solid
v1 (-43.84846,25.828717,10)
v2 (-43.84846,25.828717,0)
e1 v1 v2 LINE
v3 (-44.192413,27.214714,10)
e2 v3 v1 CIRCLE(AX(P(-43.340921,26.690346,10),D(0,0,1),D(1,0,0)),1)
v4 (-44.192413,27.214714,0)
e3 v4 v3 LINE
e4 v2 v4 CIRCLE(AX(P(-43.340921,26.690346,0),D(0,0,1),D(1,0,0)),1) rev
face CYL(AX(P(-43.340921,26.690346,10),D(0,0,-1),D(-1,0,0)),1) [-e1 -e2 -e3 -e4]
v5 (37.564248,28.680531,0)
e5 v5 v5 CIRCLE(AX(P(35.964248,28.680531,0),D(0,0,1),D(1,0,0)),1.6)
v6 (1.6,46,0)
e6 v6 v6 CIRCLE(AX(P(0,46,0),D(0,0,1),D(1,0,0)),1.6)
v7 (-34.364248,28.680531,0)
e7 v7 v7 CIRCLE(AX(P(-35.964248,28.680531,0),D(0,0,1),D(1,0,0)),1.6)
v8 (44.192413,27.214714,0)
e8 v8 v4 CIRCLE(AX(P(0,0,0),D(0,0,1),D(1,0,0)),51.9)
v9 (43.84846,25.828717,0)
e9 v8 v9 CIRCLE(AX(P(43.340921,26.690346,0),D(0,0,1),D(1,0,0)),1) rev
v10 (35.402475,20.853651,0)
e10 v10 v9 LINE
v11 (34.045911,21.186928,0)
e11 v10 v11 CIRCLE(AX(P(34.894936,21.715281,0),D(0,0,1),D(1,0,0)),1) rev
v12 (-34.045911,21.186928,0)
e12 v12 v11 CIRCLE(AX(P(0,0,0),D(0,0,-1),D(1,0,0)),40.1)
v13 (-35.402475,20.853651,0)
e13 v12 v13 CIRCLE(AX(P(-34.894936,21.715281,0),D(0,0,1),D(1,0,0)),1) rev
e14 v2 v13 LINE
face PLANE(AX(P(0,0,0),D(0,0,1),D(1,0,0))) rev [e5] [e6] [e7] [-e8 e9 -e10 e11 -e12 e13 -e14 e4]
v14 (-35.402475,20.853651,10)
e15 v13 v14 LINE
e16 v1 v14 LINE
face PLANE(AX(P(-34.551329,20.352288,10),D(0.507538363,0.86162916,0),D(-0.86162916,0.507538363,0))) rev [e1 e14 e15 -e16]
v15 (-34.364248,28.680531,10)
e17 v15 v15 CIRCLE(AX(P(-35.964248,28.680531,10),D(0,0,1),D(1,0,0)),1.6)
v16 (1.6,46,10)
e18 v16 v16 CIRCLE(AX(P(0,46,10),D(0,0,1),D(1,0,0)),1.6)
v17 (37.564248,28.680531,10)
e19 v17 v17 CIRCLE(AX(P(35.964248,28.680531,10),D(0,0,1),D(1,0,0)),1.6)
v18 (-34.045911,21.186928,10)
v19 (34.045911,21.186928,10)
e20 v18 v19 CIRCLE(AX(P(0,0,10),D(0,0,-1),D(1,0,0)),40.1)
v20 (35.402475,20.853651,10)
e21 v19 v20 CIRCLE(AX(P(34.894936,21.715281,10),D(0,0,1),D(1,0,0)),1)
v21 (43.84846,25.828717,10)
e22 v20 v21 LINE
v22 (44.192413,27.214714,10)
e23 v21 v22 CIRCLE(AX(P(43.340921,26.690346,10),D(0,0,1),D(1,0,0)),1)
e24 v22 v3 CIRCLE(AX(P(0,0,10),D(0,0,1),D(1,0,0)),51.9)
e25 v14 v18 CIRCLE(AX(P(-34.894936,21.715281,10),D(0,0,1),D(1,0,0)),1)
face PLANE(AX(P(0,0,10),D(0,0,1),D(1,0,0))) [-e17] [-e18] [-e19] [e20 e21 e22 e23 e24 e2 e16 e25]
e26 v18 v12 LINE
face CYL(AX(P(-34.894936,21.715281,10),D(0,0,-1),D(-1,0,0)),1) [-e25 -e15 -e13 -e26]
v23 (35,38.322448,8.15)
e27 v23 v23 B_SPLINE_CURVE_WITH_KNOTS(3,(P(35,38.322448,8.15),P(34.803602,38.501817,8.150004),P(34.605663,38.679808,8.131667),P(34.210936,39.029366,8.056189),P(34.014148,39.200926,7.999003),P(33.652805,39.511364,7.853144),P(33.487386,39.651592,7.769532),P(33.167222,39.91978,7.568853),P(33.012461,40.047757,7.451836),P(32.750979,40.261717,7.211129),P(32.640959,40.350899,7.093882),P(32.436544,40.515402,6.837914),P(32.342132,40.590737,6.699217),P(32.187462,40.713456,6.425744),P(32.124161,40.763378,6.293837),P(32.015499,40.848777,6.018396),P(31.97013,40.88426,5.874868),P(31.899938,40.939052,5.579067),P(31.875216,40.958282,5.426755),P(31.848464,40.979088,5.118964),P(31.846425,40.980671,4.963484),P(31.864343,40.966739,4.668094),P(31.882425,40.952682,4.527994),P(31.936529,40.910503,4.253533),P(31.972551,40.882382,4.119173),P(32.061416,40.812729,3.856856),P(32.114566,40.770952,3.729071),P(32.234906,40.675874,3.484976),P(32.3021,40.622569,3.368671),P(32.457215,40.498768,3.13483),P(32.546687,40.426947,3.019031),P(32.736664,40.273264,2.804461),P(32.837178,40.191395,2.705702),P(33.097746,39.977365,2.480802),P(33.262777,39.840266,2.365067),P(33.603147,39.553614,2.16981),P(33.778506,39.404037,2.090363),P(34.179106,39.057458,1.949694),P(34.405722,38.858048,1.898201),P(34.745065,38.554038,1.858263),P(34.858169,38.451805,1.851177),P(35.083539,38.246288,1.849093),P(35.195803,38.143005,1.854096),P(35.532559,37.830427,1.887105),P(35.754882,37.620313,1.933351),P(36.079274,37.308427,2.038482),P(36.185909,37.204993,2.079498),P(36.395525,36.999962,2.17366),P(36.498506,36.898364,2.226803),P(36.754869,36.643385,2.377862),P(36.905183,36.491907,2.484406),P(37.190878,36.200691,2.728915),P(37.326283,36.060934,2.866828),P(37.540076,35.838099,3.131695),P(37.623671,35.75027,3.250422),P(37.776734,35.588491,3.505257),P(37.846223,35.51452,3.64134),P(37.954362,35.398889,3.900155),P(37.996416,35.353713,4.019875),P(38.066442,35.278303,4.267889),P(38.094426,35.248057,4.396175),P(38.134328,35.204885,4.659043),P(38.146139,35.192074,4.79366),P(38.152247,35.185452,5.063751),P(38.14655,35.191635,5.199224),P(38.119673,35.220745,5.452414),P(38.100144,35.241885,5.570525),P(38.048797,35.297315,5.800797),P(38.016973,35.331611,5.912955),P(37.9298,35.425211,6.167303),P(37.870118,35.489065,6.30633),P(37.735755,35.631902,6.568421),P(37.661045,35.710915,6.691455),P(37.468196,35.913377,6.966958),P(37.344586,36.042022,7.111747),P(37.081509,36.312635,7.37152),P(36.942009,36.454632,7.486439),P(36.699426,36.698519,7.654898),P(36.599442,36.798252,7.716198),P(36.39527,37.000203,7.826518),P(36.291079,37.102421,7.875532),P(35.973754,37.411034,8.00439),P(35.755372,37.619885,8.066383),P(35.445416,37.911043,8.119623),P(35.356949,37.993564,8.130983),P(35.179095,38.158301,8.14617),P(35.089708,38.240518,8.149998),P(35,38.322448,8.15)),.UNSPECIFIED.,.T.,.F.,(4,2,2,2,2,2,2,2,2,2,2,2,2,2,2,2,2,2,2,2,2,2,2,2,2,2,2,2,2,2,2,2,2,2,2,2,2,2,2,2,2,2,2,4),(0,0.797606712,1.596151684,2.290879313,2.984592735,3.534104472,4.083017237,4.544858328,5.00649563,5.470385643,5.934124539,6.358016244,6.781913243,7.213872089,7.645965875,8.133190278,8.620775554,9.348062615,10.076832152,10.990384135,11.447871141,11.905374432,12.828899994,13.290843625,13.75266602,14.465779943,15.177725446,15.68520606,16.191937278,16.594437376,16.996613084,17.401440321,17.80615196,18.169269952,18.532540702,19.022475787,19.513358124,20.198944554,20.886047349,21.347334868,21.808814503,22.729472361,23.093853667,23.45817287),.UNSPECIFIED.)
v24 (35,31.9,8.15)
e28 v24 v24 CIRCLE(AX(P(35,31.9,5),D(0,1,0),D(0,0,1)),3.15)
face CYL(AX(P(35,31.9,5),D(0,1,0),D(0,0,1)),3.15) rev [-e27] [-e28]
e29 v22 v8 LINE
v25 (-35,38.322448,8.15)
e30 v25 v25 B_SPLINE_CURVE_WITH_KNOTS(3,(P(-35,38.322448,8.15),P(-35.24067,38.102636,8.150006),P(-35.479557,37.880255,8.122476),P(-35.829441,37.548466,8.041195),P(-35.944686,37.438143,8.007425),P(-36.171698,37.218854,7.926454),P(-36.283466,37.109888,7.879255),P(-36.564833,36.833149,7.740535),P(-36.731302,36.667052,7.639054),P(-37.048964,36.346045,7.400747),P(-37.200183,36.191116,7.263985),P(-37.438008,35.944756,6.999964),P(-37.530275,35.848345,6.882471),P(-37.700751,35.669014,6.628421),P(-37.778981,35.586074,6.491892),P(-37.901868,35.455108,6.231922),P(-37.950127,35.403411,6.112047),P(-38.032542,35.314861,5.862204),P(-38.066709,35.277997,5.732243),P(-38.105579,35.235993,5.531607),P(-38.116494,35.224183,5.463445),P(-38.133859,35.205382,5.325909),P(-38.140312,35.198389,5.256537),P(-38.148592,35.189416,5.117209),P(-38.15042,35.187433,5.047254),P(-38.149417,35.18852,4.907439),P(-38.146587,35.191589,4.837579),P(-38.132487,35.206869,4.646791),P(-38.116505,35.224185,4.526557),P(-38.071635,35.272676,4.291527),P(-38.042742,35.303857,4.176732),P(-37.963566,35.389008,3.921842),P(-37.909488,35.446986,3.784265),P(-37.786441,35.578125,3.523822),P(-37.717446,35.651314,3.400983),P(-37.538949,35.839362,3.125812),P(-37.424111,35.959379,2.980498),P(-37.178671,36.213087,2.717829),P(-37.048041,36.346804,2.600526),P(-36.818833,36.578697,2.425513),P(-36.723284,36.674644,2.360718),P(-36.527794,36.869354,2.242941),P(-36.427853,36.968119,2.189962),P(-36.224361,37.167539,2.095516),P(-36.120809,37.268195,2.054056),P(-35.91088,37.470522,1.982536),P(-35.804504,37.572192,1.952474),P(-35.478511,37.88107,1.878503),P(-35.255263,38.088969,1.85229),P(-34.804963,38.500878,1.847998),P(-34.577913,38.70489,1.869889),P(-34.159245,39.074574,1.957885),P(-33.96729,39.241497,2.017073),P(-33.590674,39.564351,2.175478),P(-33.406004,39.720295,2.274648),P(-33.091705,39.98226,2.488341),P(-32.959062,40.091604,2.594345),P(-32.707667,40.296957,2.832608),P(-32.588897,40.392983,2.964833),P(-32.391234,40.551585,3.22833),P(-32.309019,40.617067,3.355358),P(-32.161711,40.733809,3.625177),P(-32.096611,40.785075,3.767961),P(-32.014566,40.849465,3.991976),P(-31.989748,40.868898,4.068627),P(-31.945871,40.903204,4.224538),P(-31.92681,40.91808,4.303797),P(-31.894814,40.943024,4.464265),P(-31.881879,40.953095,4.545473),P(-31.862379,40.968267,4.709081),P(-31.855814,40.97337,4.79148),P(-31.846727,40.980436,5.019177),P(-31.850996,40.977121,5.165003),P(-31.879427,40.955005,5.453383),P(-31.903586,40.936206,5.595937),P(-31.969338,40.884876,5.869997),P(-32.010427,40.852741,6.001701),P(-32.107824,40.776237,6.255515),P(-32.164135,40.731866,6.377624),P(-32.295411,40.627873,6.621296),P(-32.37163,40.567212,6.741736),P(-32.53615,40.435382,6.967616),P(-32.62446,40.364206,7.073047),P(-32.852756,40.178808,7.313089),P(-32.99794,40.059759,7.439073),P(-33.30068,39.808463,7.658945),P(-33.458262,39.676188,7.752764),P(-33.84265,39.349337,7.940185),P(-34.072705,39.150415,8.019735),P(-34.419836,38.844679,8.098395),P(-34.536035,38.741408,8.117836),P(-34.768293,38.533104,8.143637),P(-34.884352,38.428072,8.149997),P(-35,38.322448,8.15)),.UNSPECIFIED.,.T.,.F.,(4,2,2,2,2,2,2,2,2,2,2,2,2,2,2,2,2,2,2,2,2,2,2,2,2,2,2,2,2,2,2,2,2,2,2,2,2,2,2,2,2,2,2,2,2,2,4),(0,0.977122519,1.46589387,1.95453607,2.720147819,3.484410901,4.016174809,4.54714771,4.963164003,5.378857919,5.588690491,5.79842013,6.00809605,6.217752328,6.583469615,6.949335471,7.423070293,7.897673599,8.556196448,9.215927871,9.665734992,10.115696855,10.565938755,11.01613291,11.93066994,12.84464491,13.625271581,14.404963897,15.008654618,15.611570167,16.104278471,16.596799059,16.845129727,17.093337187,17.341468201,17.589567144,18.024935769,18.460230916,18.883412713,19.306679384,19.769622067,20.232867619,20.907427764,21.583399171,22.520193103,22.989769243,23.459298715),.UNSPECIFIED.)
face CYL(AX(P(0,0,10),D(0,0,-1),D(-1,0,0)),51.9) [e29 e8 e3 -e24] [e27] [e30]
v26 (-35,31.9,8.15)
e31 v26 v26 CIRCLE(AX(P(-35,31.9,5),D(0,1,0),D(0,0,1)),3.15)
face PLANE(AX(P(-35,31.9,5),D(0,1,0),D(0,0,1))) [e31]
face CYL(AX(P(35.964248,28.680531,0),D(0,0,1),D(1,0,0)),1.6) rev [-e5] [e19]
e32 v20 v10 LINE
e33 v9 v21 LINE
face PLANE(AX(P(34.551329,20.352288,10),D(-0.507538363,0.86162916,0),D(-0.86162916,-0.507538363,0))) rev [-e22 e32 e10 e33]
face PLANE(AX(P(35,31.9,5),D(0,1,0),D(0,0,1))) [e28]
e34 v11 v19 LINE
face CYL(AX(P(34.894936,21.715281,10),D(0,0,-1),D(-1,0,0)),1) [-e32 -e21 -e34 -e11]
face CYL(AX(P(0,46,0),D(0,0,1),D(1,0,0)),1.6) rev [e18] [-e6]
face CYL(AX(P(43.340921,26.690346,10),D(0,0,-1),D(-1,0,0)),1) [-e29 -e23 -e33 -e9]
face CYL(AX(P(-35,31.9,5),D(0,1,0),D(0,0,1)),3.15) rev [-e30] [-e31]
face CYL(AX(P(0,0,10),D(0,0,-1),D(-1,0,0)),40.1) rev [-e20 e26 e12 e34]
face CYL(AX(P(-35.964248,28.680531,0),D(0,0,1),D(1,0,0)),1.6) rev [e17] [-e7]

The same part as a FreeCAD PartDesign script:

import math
import FreeCAD as App
import Part
import Sketcher
Q = App.Units.Quantity


def edges_at(feature, points):
    """Names of the edges that pass closest to the given points."""
    edges = feature.Shape.Edges
    near = lambda p: min(range(len(edges)), key=lambda i: edges[i].distToShape(Part.Vertex(*p))[0])
    return sorted({f"Edge{near(p) + 1}" for p in points})

doc = App.newDocument("Part")
params = doc.addObject("Spreadsheet::Sheet", "Params")
for row, (alias, value) in enumerate([
    ("sketch1_radius", "40.1 mm"),
    ("sketch1_radius2", "51.9 mm"),
    ("pad1_length", "10 mm"),
    ("fillet_radius", "1 mm"),
    ("sketch2_diameter", "3.2 mm"),
    ("pocket1_length", "10 mm"),
    ("sketch3_diameter", "6.3 mm"),
    ("pocket2_length", "20 mm"),
], start=1):
    params.set(f"A{row}", alias)
    params.set(f"B{row}", "=" + value)
    params.setAlias(f"B{row}", alias)

body = doc.addObject("PartDesign::Body", "Body")

# Sketch on XY plane
sketch1 = doc.addObject("Sketcher::SketchObject", "Sketch")
body.addObject(sketch1)
sketch1.AttachmentSupport = (doc.XY_Plane, [""])
sketch1.MapMode = "FlatFace"
sketch1.addGeometry(Part.LineSegment(App.Vector(-45, 26, 0), App.Vector(-35, 20, 0)), False)
sketch1.addGeometry(Part.ArcOfCircle(Part.Circle(App.Vector(0, 0, 0), App.Vector(0, 0, 1), 40), math.radians(31), math.radians(149)), False)
sketch1.addGeometry(Part.LineSegment(App.Vector(35, 20, 0), App.Vector(45, 26, 0)), False)
sketch1.addGeometry(Part.ArcOfCircle(Part.Circle(App.Vector(0, 0, 0), App.Vector(0, 0, 1), 52), math.radians(31), math.radians(149)), False)
sketch1.addConstraint(Sketcher.Constraint("Coincident", 0, 2, 1, 2))
sketch1.addConstraint(Sketcher.Constraint("Coincident", 1, 1, 2, 1))
sketch1.addConstraint(Sketcher.Constraint("Coincident", 2, 2, 3, 1))
sketch1.addConstraint(Sketcher.Constraint("Coincident", 3, 2, 0, 1))
sketch1.addConstraint(Sketcher.Constraint("Coincident", 1, 3, -1, 1))
sketch1.addConstraint(Sketcher.Constraint("Coincident", 3, 3, -1, 1))
sketch1.addConstraint(Sketcher.Constraint("Horizontal", 0, 2, 1, 1))
sketch1.addConstraint(Sketcher.Constraint("Horizontal", 2, 2, 3, 2))
sketch1.addConstraint(Sketcher.Constraint("Radius", 1, 40.1))
sketch1.addConstraint(Sketcher.Constraint("Radius", 3, 51.9))
sketch1.addConstraint(Sketcher.Constraint("Angle", 0, Q("-30.5 deg")))
sketch1.addConstraint(Sketcher.Constraint("DistanceX", 0, 2, -1, 1, 34.551329))
sketch1.setExpression("Constraints[8]", "Params.sketch1_radius")
sketch1.setExpression("Constraints[9]", "Params.sketch1_radius2")
pad1 = doc.addObject("PartDesign::Pad", "Pad")
body.addObject(pad1)
pad1.Profile = sketch1
pad1.setExpression("Length", "Params.pad1_length")
doc.recompute()

fillet = doc.addObject("PartDesign::Fillet", "Fillet")
body.addObject(fillet)
fillet.Base = (pad1, edges_at(pad1, [
    (-34.551, 20.352, 5),
    (-44.719, 26.341, 5),
    (44.719, 26.341, 5),
    (34.551, 20.352, 5),
]))
fillet.setExpression("Radius", "Params.fillet_radius")

# Sketch on XY plane
sketch2 = doc.addObject("Sketcher::SketchObject", "Sketch001")
body.addObject(sketch2)
sketch2.AttachmentSupport = (doc.XY_Plane, [""])
sketch2.MapMode = "FlatFace"
sketch2.AttachmentOffset = App.Placement(App.Vector(0, 0, 10), App.Rotation())
sketch2.addGeometry(Part.Circle(App.Vector(0, 46, 0), App.Vector(0, 0, 1), 1.6), False)
sketch2.addGeometry(Part.Circle(App.Vector(36, 28.7, 0), App.Vector(0, 0, 1), 1.6), False)
sketch2.addGeometry(Part.Circle(App.Vector(-36, 28.7, 0), App.Vector(0, 0, 1), 1.6), False)
sketch2.addConstraint(Sketcher.Constraint("Equal", 0, 1))
sketch2.addConstraint(Sketcher.Constraint("Equal", 1, 2))
sketch2.addConstraint(Sketcher.Constraint("Symmetric", 1, 3, 2, 3, -2))
sketch2.addConstraint(Sketcher.Constraint("PointOnObject", 0, 3, -2))
sketch2.addConstraint(Sketcher.Constraint("Diameter", 0, 3.2))
sketch2.addConstraint(Sketcher.Constraint("DistanceY", -1, 1, 0, 3, 46.0))
sketch2.addConstraint(Sketcher.Constraint("DistanceX", -1, 1, 1, 3, 35.964248))
sketch2.addConstraint(Sketcher.Constraint("DistanceY", -1, 1, 1, 3, 28.680531))
sketch2.setExpression("Constraints[4]", "Params.sketch2_diameter")
pocket1 = doc.addObject("PartDesign::Pocket", "Pocket")
body.addObject(pocket1)
pocket1.Profile = sketch2
pocket1.setExpression("Length", "Params.pocket1_length")

# Sketch on XZ plane
sketch3 = doc.addObject("Sketcher::SketchObject", "Sketch002")
body.addObject(sketch3)
sketch3.AttachmentSupport = (doc.XZ_Plane, [""])
sketch3.MapMode = "FlatFace"
sketch3.AttachmentOffset = App.Placement(App.Vector(0, 0, -51.9), App.Rotation())
sketch3.addGeometry(Part.Circle(App.Vector(-35, 5, 0), App.Vector(0, 0, 1), 3.1), False)
sketch3.addGeometry(Part.Circle(App.Vector(35, 5, 0), App.Vector(0, 0, 1), 3.1), False)
sketch3.addConstraint(Sketcher.Constraint("Equal", 0, 1))
sketch3.addConstraint(Sketcher.Constraint("Symmetric", 0, 3, 1, 3, -2))
sketch3.addConstraint(Sketcher.Constraint("Diameter", 0, 6.3))
sketch3.addConstraint(Sketcher.Constraint("DistanceX", 0, 3, -1, 1, 35.0))
sketch3.addConstraint(Sketcher.Constraint("DistanceY", -1, 1, 0, 3, 5.0))
sketch3.setExpression("Constraints[2]", "Params.sketch3_diameter")
pocket2 = doc.addObject("PartDesign::Pocket", "Pocket001")
body.addObject(pocket2)
pocket2.Profile = sketch3
pocket2.setExpression("Length", "Params.pocket2_length")
pocket2.Reversed = True

doc.recompute()
